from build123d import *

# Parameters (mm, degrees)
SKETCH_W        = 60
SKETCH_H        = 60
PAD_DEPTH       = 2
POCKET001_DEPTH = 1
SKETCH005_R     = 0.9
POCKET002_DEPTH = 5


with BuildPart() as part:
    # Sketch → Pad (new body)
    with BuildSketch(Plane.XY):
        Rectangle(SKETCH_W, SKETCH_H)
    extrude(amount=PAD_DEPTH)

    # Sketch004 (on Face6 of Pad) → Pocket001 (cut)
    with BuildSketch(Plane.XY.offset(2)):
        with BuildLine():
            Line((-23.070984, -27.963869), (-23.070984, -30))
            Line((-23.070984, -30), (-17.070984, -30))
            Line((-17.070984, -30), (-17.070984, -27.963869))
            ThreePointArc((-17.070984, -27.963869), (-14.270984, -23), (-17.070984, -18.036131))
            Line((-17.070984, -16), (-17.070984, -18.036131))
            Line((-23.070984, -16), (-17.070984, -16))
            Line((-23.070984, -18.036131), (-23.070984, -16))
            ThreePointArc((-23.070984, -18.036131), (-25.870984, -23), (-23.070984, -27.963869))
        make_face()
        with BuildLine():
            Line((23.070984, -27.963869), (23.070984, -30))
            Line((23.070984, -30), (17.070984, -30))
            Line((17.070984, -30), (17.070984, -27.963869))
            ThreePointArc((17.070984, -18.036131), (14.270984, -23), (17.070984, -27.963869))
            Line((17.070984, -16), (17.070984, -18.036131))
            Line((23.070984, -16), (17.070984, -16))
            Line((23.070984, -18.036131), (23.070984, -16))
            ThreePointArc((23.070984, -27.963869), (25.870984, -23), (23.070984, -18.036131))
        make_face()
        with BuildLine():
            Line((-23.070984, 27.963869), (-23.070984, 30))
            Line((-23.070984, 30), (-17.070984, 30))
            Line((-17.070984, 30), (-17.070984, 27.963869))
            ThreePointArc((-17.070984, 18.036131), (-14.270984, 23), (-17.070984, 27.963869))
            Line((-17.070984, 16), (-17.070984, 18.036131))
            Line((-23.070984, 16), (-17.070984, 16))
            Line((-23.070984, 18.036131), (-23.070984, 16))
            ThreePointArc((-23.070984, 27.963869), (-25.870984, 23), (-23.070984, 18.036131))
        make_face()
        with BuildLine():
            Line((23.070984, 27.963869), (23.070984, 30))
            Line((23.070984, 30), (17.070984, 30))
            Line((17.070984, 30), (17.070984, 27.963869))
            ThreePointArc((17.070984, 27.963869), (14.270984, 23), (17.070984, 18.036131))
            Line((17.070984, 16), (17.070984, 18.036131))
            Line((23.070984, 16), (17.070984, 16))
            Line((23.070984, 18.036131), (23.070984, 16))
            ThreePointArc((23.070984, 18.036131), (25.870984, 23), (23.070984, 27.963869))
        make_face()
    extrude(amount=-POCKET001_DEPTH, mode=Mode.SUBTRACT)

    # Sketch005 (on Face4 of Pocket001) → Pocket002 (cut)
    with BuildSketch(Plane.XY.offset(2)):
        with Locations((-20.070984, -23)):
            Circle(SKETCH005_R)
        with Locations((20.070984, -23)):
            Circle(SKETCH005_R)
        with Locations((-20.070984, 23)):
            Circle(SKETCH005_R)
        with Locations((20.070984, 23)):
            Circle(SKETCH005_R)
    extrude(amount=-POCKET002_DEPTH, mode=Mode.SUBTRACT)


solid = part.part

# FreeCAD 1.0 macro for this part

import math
import FreeCAD as App
import Part
import Sketcher
from FreeCAD import Vector

doc = App.newDocument("Part")
body = doc.addObject("PartDesign::Body", "Body")

# Sketch on XY plane
sketch1 = doc.addObject("Sketcher::SketchObject", "Sketch")
body.addObject(sketch1)
sketch1.AttachmentSupport = (doc.XY_Plane, [""])
sketch1.MapMode = "FlatFace"
sketch1.addGeometry([
    Part.LineSegment(Vector(-30, 30, 0), Vector(-30, -30, 0)),
    Part.LineSegment(Vector(-30, -30, 0), Vector(30, -30, 0)),
    Part.LineSegment(Vector(30, -30, 0), Vector(30, 30, 0)),
    Part.LineSegment(Vector(30, 30, 0), Vector(-30, 30, 0)),
], False)
sketch1.addConstraint([
    Sketcher.Constraint("Coincident", 0, 2, 1, 1),
    Sketcher.Constraint("Coincident", 1, 2, 2, 1),
    Sketcher.Constraint("Coincident", 2, 2, 3, 1),
    Sketcher.Constraint("Coincident", 3, 2, 0, 1),
    Sketcher.Constraint("Vertical", 0),
    Sketcher.Constraint("Horizontal", 1),
    Sketcher.Constraint("Vertical", 2),
    Sketcher.Constraint("Horizontal", 3),
    Sketcher.Constraint("Symmetric", 0, 2, 2, 2, -1, 1),
    Sketcher.Constraint("Equal", 3, 0),
    Sketcher.Constraint("DistanceX", 1, 1, 1, 2, 60.0),
])
pad1 = doc.addObject("PartDesign::Pad", "Pad")
body.addObject(pad1)
pad1.Profile = sketch1
pad1.Length = 2

# Sketch on XY plane
sketch2 = doc.addObject("Sketcher::SketchObject", "Sketch001")
body.addObject(sketch2)
sketch2.AttachmentSupport = (doc.XY_Plane, [""])
sketch2.MapMode = "FlatFace"
sketch2.AttachmentOffset = App.Placement(Vector(0, 0, 2), App.Rotation())
sketch2.addGeometry([
    Part.LineSegment(Vector(-23.1, -28, 0), Vector(-23.1, -30, 0)),  # 0
    Part.LineSegment(Vector(-23.1, -30, 0), Vector(-17.1, -30, 0)),  # 1
    Part.LineSegment(Vector(-17.1, -30, 0), Vector(-17.1, -28, 0)),  # 2
    Part.ArcOfCircle(Part.Circle(Vector(-20.1, -23, 0), Vector(0, 0, 1), 5.8), math.radians(-59), math.radians(59)),  # 3
    Part.LineSegment(Vector(-17.1, -18, 0), Vector(-17.1, -16, 0)),  # 4
    Part.LineSegment(Vector(-17.1, -16, 0), Vector(-23.1, -16, 0)),  # 5
    Part.LineSegment(Vector(-23.1, -16, 0), Vector(-23.1, -18, 0)),  # 6
    Part.ArcOfCircle(Part.Circle(Vector(-20.1, -23, 0), Vector(0, 0, 1), 5.8), math.radians(121), math.radians(239)),  # 7
    Part.LineSegment(Vector(23.1, -30, 0), Vector(23.1, -28, 0)),  # 8
    Part.ArcOfCircle(Part.Circle(Vector(20.1, -23, 0), Vector(0, 0, 1), 5.8), math.radians(-59), math.radians(59)),  # 9
    Part.LineSegment(Vector(23.1, -18, 0), Vector(23.1, -16, 0)),  # 10
    Part.LineSegment(Vector(23.1, -16, 0), Vector(17.1, -16, 0)),  # 11
    Part.LineSegment(Vector(17.1, -16, 0), Vector(17.1, -18, 0)),  # 12
    Part.ArcOfCircle(Part.Circle(Vector(20.1, -23, 0), Vector(0, 0, 1), 5.8), math.radians(121), math.radians(239)),  # 13
    Part.LineSegment(Vector(17.1, -28, 0), Vector(17.1, -30, 0)),  # 14
    Part.LineSegment(Vector(17.1, -30, 0), Vector(23.1, -30, 0)),  # 15
    Part.LineSegment(Vector(-23.1, 30, 0), Vector(-23.1, 28, 0)),  # 16
    Part.ArcOfCircle(Part.Circle(Vector(-20.1, 23, 0), Vector(0, 0, 1), 5.8), math.radians(121), math.radians(239)),  # 17
    Part.LineSegment(Vector(-23.1, 18, 0), Vector(-23.1, 16, 0)),  # 18
    Part.LineSegment(Vector(-23.1, 16, 0), Vector(-17.1, 16, 0)),  # 19
    Part.LineSegment(Vector(-17.1, 16, 0), Vector(-17.1, 18, 0)),  # 20
    Part.ArcOfCircle(Part.Circle(Vector(-20.1, 23, 0), Vector(0, 0, 1), 5.8), math.radians(-59), math.radians(59)),  # 21
    Part.LineSegment(Vector(-17.1, 28, 0), Vector(-17.1, 30, 0)),  # 22
    Part.LineSegment(Vector(-17.1, 30, 0), Vector(-23.1, 30, 0)),  # 23
    Part.LineSegment(Vector(23.1, 28, 0), Vector(23.1, 30, 0)),  # 24
    Part.LineSegment(Vector(23.1, 30, 0), Vector(17.1, 30, 0)),  # 25
    Part.LineSegment(Vector(17.1, 30, 0), Vector(17.1, 28, 0)),  # 26
    Part.ArcOfCircle(Part.Circle(Vector(20.1, 23, 0), Vector(0, 0, 1), 5.8), math.radians(121), math.radians(239)),  # 27
    Part.LineSegment(Vector(17.1, 18, 0), Vector(17.1, 16, 0)),  # 28
    Part.LineSegment(Vector(17.1, 16, 0), Vector(23.1, 16, 0)),  # 29
    Part.LineSegment(Vector(23.1, 16, 0), Vector(23.1, 18, 0)),  # 30
    Part.ArcOfCircle(Part.Circle(Vector(20.1, 23, 0), Vector(0, 0, 1), 5.8), math.radians(-59), math.radians(59)),  # 31
], False)
sketch2.addConstraint([
    Sketcher.Constraint("Coincident", 0, 2, 1, 1),
    Sketcher.Constraint("Coincident", 1, 2, 2, 1),
    Sketcher.Constraint("Coincident", 2, 2, 3, 1),
    Sketcher.Constraint("Coincident", 3, 2, 4, 1),
    Sketcher.Constraint("Coincident", 4, 2, 5, 1),
    Sketcher.Constraint("Coincident", 5, 2, 6, 1),
    Sketcher.Constraint("Coincident", 6, 2, 7, 1),
    Sketcher.Constraint("Coincident", 7, 2, 0, 1),
    Sketcher.Constraint("Coincident", 8, 2, 9, 1),
    Sketcher.Constraint("Coincident", 9, 2, 10, 1),
    Sketcher.Constraint("Coincident", 10, 2, 11, 1),
    Sketcher.Constraint("Coincident", 11, 2, 12, 1),
    Sketcher.Constraint("Coincident", 12, 2, 13, 1),
    Sketcher.Constraint("Coincident", 13, 2, 14, 1),
    Sketcher.Constraint("Coincident", 14, 2, 15, 1),
    Sketcher.Constraint("Coincident", 15, 2, 8, 1),
    Sketcher.Constraint("Coincident", 16, 2, 17, 1),
    Sketcher.Constraint("Coincident", 17, 2, 18, 1),
    Sketcher.Constraint("Coincident", 18, 2, 19, 1),
    Sketcher.Constraint("Coincident", 19, 2, 20, 1),
    Sketcher.Constraint("Coincident", 20, 2, 21, 1),
    Sketcher.Constraint("Coincident", 21, 2, 22, 1),
    Sketcher.Constraint("Coincident", 22, 2, 23, 1),
    Sketcher.Constraint("Coincident", 23, 2, 16, 1),
    Sketcher.Constraint("Coincident", 24, 2, 25, 1),
    Sketcher.Constraint("Coincident", 25, 2, 26, 1),
    Sketcher.Constraint("Coincident", 26, 2, 27, 1),
    Sketcher.Constraint("Coincident", 27, 2, 28, 1),
    Sketcher.Constraint("Coincident", 28, 2, 29, 1),
    Sketcher.Constraint("Coincident", 29, 2, 30, 1),
    Sketcher.Constraint("Coincident", 30, 2, 31, 1),
    Sketcher.Constraint("Coincident", 31, 2, 24, 1),
    Sketcher.Constraint("Vertical", 0),
    Sketcher.Constraint("Horizontal", 1),
    Sketcher.Constraint("Vertical", 2),
    Sketcher.Constraint("Vertical", 4),
    Sketcher.Constraint("Horizontal", 5),
    Sketcher.Constraint("Vertical", 6),
    Sketcher.Constraint("Vertical", 8),
    Sketcher.Constraint("Vertical", 10),
    Sketcher.Constraint("Horizontal", 11),
    Sketcher.Constraint("Vertical", 12),
    Sketcher.Constraint("Vertical", 14),
    Sketcher.Constraint("Horizontal", 15),
    Sketcher.Constraint("Vertical", 16),
    Sketcher.Constraint("Vertical", 18),
    Sketcher.Constraint("Horizontal", 19),
    Sketcher.Constraint("Vertical", 20),
    Sketcher.Constraint("Vertical", 22),
    Sketcher.Constraint("Horizontal", 23),
    Sketcher.Constraint("Vertical", 24),
    Sketcher.Constraint("Horizontal", 25),
    Sketcher.Constraint("Vertical", 26),
    Sketcher.Constraint("Vertical", 28),
    Sketcher.Constraint("Horizontal", 29),
    Sketcher.Constraint("Vertical", 30),
    Sketcher.Constraint("Coincident", 7, 3, 3, 3),
    Sketcher.Constraint("Coincident", 13, 3, 9, 3),
    Sketcher.Constraint("Coincident", 21, 3, 17, 3),
    Sketcher.Constraint("Coincident", 31, 3, 27, 3),
    Sketcher.Constraint("Equal", 3, 7),
    Sketcher.Constraint("Equal", 7, 9),
    Sketcher.Constraint("Equal", 9, 13),
    Sketcher.Constraint("Equal", 13, 17),
    Sketcher.Constraint("Equal", 17, 21),
    Sketcher.Constraint("Equal", 21, 27),
    Sketcher.Constraint("Equal", 27, 31),
    Sketcher.Constraint("Symmetric", 9, 3, 17, 3, -1, 1),
    Sketcher.Constraint("Symmetric", 3, 3, 27, 3, -1, 1),
    Sketcher.Constraint("Symmetric", 10, 2, 18, 2, -1, 1),
    Sketcher.Constraint("Symmetric", 14, 2, 22, 2, -1, 1),
    Sketcher.Constraint("Symmetric", 0, 2, 24, 2, -1, 1),
    Sketcher.Constraint("Symmetric", 4, 2, 28, 2, -1, 1),
    Sketcher.Constraint("Symmetric", 3, 3, 9, 3, -2),
    Sketcher.Constraint("Symmetric", 5, 2, 10, 2, -2),
    Sketcher.Constraint("Symmetric", 1, 2, 14, 2, -2),
    Sketcher.Constraint("Horizontal", 3, 2, 6, 2),
    Sketcher.Constraint("Horizontal", 2, 2, 7, 2),
    Sketcher.Constraint("Horizontal", 7, 2, 8, 2),
    Sketcher.Constraint("Horizontal", 9, 2, 12, 2),
    Sketcher.Constraint("Horizontal", 17, 2, 20, 2),
    Sketcher.Constraint("Horizontal", 16, 2, 21, 2),
    Sketcher.Constraint("Horizontal", 21, 2, 26, 2),
    Sketcher.Constraint("Horizontal", 27, 2, 30, 2),
    Sketcher.Constraint("Vertical", 2, 2, 3, 2),
    Sketcher.Constraint("Equal", 2, 4),
    Sketcher.Constraint("Radius", 3, 5.799999),
    Sketcher.Constraint("DistanceX", 1, 1, 1, 2, 6.0),
    Sketcher.Constraint("DistanceY", 3, 3, -1, 1, 23.0),
    Sketcher.Constraint("DistanceY", 0, 2, -1, 1, 30.0),
    Sketcher.Constraint("DistanceX", 7, 3, 9, 3, 40.14197),
])
pocket1 = doc.addObject("PartDesign::Pocket", "Pocket")
body.addObject(pocket1)
pocket1.Profile = sketch2
pocket1.Length = 1

# Sketch on XY plane
sketch3 = doc.addObject("Sketcher::SketchObject", "Sketch002")
body.addObject(sketch3)
sketch3.AttachmentSupport = (doc.XY_Plane, [""])
sketch3.MapMode = "FlatFace"
sketch3.AttachmentOffset = App.Placement(Vector(0, 0, 2), App.Rotation())
sketch3.addGeometry([
    Part.Circle(Vector(-20.1, -23, 0), Vector(0, 0, 1), 0.9),
    Part.Circle(Vector(20.1, -23, 0), Vector(0, 0, 1), 0.9),
    Part.Circle(Vector(-20.1, 23, 0), Vector(0, 0, 1), 0.9),
    Part.Circle(Vector(20.1, 23, 0), Vector(0, 0, 1), 0.9),
], False)
sketch3.addConstraint([
    Sketcher.Constraint("Equal", 0, 1),
    Sketcher.Constraint("Equal", 1, 2),
    Sketcher.Constraint("Equal", 2, 3),
    Sketcher.Constraint("Symmetric", 1, 3, 2, 3, -1, 1),
    Sketcher.Constraint("Symmetric", 0, 3, 3, 3, -1, 1),
    Sketcher.Constraint("Symmetric", 0, 3, 1, 3, -2),
    Sketcher.Constraint("Diameter", 0, 1.8),
    Sketcher.Constraint("DistanceY", 0, 3, -1, 1, 23.0),
    Sketcher.Constraint("DistanceX", 0, 3, -1, 1, 20.070984),
])
pocket2 = doc.addObject("PartDesign::Pocket", "Pocket001")
body.addObject(pocket2)
pocket2.Profile = sketch3
pocket2.Length = 5

doc.recompute()
